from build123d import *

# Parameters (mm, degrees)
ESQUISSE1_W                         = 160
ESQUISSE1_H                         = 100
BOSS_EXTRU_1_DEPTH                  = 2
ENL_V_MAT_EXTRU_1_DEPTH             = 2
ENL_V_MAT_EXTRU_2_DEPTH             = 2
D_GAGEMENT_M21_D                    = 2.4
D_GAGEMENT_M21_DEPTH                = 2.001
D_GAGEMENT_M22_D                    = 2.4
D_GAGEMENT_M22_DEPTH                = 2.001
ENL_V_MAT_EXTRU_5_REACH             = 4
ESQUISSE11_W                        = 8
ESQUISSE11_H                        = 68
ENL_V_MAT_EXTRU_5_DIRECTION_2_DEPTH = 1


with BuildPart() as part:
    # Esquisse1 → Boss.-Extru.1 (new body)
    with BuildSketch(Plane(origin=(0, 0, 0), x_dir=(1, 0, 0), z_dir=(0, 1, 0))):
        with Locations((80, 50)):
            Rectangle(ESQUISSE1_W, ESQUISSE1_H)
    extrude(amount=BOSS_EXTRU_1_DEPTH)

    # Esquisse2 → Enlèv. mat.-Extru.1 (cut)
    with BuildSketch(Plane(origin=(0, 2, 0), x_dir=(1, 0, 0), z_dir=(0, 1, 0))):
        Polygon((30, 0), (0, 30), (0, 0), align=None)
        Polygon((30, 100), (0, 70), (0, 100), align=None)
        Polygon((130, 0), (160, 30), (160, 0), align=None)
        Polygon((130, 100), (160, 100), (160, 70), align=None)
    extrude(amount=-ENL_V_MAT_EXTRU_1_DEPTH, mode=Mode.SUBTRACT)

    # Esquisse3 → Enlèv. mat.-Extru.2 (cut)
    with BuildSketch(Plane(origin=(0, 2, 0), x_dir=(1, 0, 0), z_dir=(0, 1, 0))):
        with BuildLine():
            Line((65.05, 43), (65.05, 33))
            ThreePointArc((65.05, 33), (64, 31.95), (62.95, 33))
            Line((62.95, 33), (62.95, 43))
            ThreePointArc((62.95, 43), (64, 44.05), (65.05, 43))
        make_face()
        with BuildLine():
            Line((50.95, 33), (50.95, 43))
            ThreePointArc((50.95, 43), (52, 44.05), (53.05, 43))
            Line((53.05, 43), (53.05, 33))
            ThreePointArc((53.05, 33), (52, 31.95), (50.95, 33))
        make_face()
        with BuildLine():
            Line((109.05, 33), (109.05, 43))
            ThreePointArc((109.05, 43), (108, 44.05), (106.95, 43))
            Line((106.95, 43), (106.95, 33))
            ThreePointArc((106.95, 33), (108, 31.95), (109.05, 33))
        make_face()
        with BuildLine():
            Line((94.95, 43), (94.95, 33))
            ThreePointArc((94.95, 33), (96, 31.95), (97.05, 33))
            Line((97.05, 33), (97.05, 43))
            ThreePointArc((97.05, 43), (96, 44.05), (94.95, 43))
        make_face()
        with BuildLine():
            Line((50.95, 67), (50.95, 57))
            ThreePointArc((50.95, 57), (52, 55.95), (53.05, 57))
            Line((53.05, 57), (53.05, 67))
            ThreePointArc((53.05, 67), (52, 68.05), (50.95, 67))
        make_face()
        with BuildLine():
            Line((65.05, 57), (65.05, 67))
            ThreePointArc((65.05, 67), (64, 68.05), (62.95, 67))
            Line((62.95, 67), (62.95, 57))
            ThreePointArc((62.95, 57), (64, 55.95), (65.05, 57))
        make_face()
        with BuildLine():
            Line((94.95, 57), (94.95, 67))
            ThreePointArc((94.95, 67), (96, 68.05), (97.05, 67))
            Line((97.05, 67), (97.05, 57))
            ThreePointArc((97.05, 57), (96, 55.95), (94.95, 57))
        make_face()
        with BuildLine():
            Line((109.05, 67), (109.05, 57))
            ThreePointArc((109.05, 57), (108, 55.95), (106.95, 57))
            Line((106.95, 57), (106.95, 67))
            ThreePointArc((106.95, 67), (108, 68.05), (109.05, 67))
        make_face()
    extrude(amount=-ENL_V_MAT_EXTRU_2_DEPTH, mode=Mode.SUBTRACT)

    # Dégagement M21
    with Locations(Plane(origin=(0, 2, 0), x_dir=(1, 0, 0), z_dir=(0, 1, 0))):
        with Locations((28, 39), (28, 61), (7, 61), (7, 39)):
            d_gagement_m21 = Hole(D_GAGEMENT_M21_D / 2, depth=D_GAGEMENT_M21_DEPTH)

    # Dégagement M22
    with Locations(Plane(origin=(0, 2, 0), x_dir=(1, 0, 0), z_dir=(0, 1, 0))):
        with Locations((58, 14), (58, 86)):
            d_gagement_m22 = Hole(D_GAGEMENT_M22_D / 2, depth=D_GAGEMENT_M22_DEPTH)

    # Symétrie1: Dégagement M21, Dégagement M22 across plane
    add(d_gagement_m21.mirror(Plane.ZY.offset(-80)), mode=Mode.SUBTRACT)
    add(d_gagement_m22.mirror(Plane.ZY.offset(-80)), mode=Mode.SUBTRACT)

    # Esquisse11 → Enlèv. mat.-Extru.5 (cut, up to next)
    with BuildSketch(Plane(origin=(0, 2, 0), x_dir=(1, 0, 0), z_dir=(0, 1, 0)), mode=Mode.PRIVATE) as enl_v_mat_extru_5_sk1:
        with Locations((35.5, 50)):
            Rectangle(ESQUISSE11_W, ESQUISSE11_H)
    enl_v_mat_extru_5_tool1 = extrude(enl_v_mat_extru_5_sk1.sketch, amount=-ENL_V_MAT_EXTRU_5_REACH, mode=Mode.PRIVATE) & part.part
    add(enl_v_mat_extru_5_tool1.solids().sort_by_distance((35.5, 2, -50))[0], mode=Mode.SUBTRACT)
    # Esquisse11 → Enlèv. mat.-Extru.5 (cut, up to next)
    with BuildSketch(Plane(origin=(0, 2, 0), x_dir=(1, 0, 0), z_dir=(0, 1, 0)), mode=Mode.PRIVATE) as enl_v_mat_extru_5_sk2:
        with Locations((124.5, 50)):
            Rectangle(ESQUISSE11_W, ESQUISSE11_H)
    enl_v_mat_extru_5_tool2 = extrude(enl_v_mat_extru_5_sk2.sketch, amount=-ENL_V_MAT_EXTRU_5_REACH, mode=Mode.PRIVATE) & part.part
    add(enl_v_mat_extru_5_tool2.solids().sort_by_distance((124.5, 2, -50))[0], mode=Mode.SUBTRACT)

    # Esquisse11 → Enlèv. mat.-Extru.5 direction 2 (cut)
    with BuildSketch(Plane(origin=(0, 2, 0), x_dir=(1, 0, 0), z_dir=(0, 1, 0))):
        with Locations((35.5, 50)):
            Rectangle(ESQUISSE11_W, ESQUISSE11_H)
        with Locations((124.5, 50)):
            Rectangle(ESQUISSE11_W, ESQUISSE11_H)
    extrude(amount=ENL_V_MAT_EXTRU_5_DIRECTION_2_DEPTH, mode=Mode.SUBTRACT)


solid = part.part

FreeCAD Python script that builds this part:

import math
import FreeCAD as App
import Part
import Sketcher

V = App.Vector


def add_polygon(sketch, points):
    """Adds a closed chain of lines whose ends are joined by coincident constraints."""
    first, n = sketch.GeometryCount, len(points)
    for a, b in zip(points, points[1:] + points[:1]):
        sketch.addGeometry(Part.LineSegment(App.Vector(*a, 0), App.Vector(*b, 0)), False)
    for i in range(n):
        sketch.addConstraint(Sketcher.Constraint("Coincident", first + i, 2, first + (i + 1) % n, 1))

doc = App.newDocument("Part")
body = doc.addObject("PartDesign::Body", "Body")

sketch1 = body.newObject("Sketcher::SketchObject", "Sketch")
sketch1.AttachmentSupport = (doc.getObject("XZ_Plane"), [""])
sketch1.MapMode = "FlatFace"
add_polygon(sketch1, [(0, -100), (0, 0), (160, 0), (160, -100)])
sketch1.addConstraint(Sketcher.Constraint("Vertical", 0))
sketch1.addConstraint(Sketcher.Constraint("Horizontal", 1))
sketch1.addConstraint(Sketcher.Constraint("Vertical", 2))
sketch1.addConstraint(Sketcher.Constraint("Horizontal", 3))
sketch1.addConstraint(Sketcher.Constraint("Coincident", 0, 2, -1, 1))
sketch1.addConstraint(Sketcher.Constraint("DistanceX", 1, 1, 1, 2, 160.0))
sketch1.addConstraint(Sketcher.Constraint("DistanceY", 0, 1, 0, 2, 100.0))
pad1 = body.newObject("PartDesign::Pad", "Pad")
pad1.Profile = sketch1
pad1.Length = 2
pad1.Reversed = True

sketch2 = body.newObject("Sketcher::SketchObject", "Sketch001")
sketch2.AttachmentSupport = (doc.getObject("XZ_Plane"), [""])
sketch2.MapMode = "FlatFace"
sketch2.AttachmentOffset = App.Placement(V(0, 0, -2), App.Rotation())
add_polygon(sketch2, [(30, 0), (0, -30), (0, 0)])
add_polygon(sketch2, [(0, -70), (30, -100), (0, -100)])
add_polygon(sketch2, [(160, -30), (130, 0), (160, 0)])
add_polygon(sketch2, [(160, -100), (130, -100), (160, -70)])
sketch2.addConstraint(Sketcher.Constraint("Vertical", 1))
sketch2.addConstraint(Sketcher.Constraint("Horizontal", 2))
sketch2.addConstraint(Sketcher.Constraint("Horizontal", 4))
sketch2.addConstraint(Sketcher.Constraint("Vertical", 5))
sketch2.addConstraint(Sketcher.Constraint("Horizontal", 7))
sketch2.addConstraint(Sketcher.Constraint("Vertical", 8))
sketch2.addConstraint(Sketcher.Constraint("Horizontal", 9))
sketch2.addConstraint(Sketcher.Constraint("Vertical", 11))
sketch2.addConstraint(Sketcher.Constraint("Coincident", 1, 2, -1, 1))
sketch2.addConstraint(Sketcher.Constraint("PointOnObject", 4, 2, -2))
sketch2.addConstraint(Sketcher.Constraint("PointOnObject", 6, 2, -1))
sketch2.addConstraint(Sketcher.Constraint("Perpendicular", 0, 3))
sketch2.addConstraint(Sketcher.Constraint("Parallel", 3, 6))
sketch2.addConstraint(Sketcher.Constraint("Perpendicular", 6, 10))
sketch2.addConstraint(Sketcher.Constraint("Horizontal", 0, 2, 8, 2))
sketch2.addConstraint(Sketcher.Constraint("Horizontal", 4, 2, 9, 2))
sketch2.addConstraint(Sketcher.Constraint("Horizontal", 5, 2, 10, 2))
sketch2.addConstraint(Sketcher.Constraint("Vertical", 2, 2, 3, 2))
sketch2.addConstraint(Sketcher.Constraint("Vertical", 6, 2, 9, 2))
sketch2.addConstraint(Sketcher.Constraint("Vertical", 8, 2, 10, 2))
sketch2.addConstraint(Sketcher.Constraint("DistanceX", 2, 1, 2, 2, 30.0))
sketch2.addConstraint(Sketcher.Constraint("DistanceY", 3, 2, -1, 1, 100.0))
sketch2.addConstraint(Sketcher.Constraint("DistanceX", -1, 1, 6, 2, 130.0))
pocket1 = body.newObject("PartDesign::Pocket", "Pocket")
pocket1.Profile = sketch2
pocket1.Length = 2
pocket1.Reversed = True

sketch3 = body.newObject("Sketcher::SketchObject", "Sketch002")
sketch3.AttachmentSupport = (doc.getObject("XZ_Plane"), [""])
sketch3.MapMode = "FlatFace"
sketch3.AttachmentOffset = App.Placement(V(0, 0, -2), App.Rotation())
sketch3.addGeometry(Part.LineSegment(V(65, -33, 0), V(65, -43, 0)), False)
sketch3.addGeometry(Part.ArcOfCircle(Part.Circle(V(64, -43, 0), V(0, 0, 1), 1.1), math.radians(180), math.radians(360)), False)
sketch3.addGeometry(Part.LineSegment(V(63, -43, 0), V(63, -33, 0)), False)
sketch3.addGeometry(Part.ArcOfCircle(Part.Circle(V(64, -33, 0), V(0, 0, 1), 1.1), math.radians(0), math.radians(180)), False)
sketch3.addGeometry(Part.LineSegment(V(51, -43, 0), V(51, -33, 0)), False)
sketch3.addGeometry(Part.ArcOfCircle(Part.Circle(V(52, -33, 0), V(0, 0, 1), 1.1), math.radians(0), math.radians(180)), False)
sketch3.addGeometry(Part.LineSegment(V(53, -33, 0), V(53, -43, 0)), False)
sketch3.addGeometry(Part.ArcOfCircle(Part.Circle(V(52, -43, 0), V(0, 0, 1), 1.1), math.radians(180), math.radians(360)), False)
sketch3.addGeometry(Part.LineSegment(V(109, -33, 0), V(109, -43, 0)), False)
sketch3.addGeometry(Part.ArcOfCircle(Part.Circle(V(108, -43, 0), V(0, 0, 1), 1.1), math.radians(180), math.radians(360)), False)
sketch3.addGeometry(Part.LineSegment(V(107, -43, 0), V(107, -33, 0)), False)
sketch3.addGeometry(Part.ArcOfCircle(Part.Circle(V(108, -33, 0), V(0, 0, 1), 1.1), math.radians(0), math.radians(180)), False)
sketch3.addGeometry(Part.LineSegment(V(95, -43, 0), V(95, -33, 0)), False)
sketch3.addGeometry(Part.ArcOfCircle(Part.Circle(V(96, -33, 0), V(0, 0, 1), 1.1), math.radians(0), math.radians(180)), False)
sketch3.addGeometry(Part.LineSegment(V(97, -33, 0), V(97, -43, 0)), False)
sketch3.addGeometry(Part.ArcOfCircle(Part.Circle(V(96, -43, 0), V(0, 0, 1), 1.1), math.radians(180), math.radians(360)), False)
sketch3.addGeometry(Part.LineSegment(V(51, -67, 0), V(51, -57, 0)), False)
sketch3.addGeometry(Part.ArcOfCircle(Part.Circle(V(52, -57, 0), V(0, 0, 1), 1.1), math.radians(0), math.radians(180)), False)
sketch3.addGeometry(Part.LineSegment(V(53, -57, 0), V(53, -67, 0)), False)
sketch3.addGeometry(Part.ArcOfCircle(Part.Circle(V(52, -67, 0), V(0, 0, 1), 1.1), math.radians(180), math.radians(360)), False)
sketch3.addGeometry(Part.LineSegment(V(65, -57, 0), V(65, -67, 0)), False)
sketch3.addGeometry(Part.ArcOfCircle(Part.Circle(V(64, -67, 0), V(0, 0, 1), 1.1), math.radians(180), math.radians(360)), False)
sketch3.addGeometry(Part.LineSegment(V(63, -67, 0), V(63, -57, 0)), False)
sketch3.addGeometry(Part.ArcOfCircle(Part.Circle(V(64, -57, 0), V(0, 0, 1), 1.1), math.radians(0), math.radians(180)), False)
sketch3.addGeometry(Part.LineSegment(V(95, -67, 0), V(95, -57, 0)), False)
sketch3.addGeometry(Part.ArcOfCircle(Part.Circle(V(96, -57, 0), V(0, 0, 1), 1.1), math.radians(0), math.radians(180)), False)
sketch3.addGeometry(Part.LineSegment(V(97, -57, 0), V(97, -67, 0)), False)
sketch3.addGeometry(Part.ArcOfCircle(Part.Circle(V(96, -67, 0), V(0, 0, 1), 1.1), math.radians(180), math.radians(360)), False)
sketch3.addGeometry(Part.LineSegment(V(109, -57, 0), V(109, -67, 0)), False)
sketch3.addGeometry(Part.ArcOfCircle(Part.Circle(V(108, -67, 0), V(0, 0, 1), 1.1), math.radians(180), math.radians(360)), False)
sketch3.addGeometry(Part.LineSegment(V(107, -67, 0), V(107, -57, 0)), False)
sketch3.addGeometry(Part.ArcOfCircle(Part.Circle(V(108, -57, 0), V(0, 0, 1), 1.1), math.radians(0), math.radians(180)), False)
sketch3.addConstraint(Sketcher.Constraint("Tangent", 0, 2, 1, 2))
sketch3.addConstraint(Sketcher.Constraint("Tangent", 1, 1, 2, 1))
sketch3.addConstraint(Sketcher.Constraint("Tangent", 2, 2, 3, 2))
sketch3.addConstraint(Sketcher.Constraint("Tangent", 3, 1, 0, 1))
sketch3.addConstraint(Sketcher.Constraint("Tangent", 4, 2, 5, 2))
sketch3.addConstraint(Sketcher.Constraint("Tangent", 5, 1, 6, 1))
sketch3.addConstraint(Sketcher.Constraint("Tangent", 6, 2, 7, 2))
sketch3.addConstraint(Sketcher.Constraint("Tangent", 7, 1, 4, 1))
sketch3.addConstraint(Sketcher.Constraint("Tangent", 8, 2, 9, 2))
sketch3.addConstraint(Sketcher.Constraint("Tangent", 9, 1, 10, 1))
sketch3.addConstraint(Sketcher.Constraint("Tangent", 10, 2, 11, 2))
sketch3.addConstraint(Sketcher.Constraint("Tangent", 11, 1, 8, 1))
sketch3.addConstraint(Sketcher.Constraint("Tangent", 12, 2, 13, 2))
sketch3.addConstraint(Sketcher.Constraint("Tangent", 13, 1, 14, 1))
sketch3.addConstraint(Sketcher.Constraint("Tangent", 14, 2, 15, 2))
sketch3.addConstraint(Sketcher.Constraint("Tangent", 15, 1, 12, 1))
sketch3.addConstraint(Sketcher.Constraint("Tangent", 16, 2, 17, 2))
sketch3.addConstraint(Sketcher.Constraint("Tangent", 17, 1, 18, 1))
sketch3.addConstraint(Sketcher.Constraint("Tangent", 18, 2, 19, 2))
sketch3.addConstraint(Sketcher.Constraint("Tangent", 19, 1, 16, 1))
sketch3.addConstraint(Sketcher.Constraint("Tangent", 20, 2, 21, 2))
sketch3.addConstraint(Sketcher.Constraint("Tangent", 21, 1, 22, 1))
sketch3.addConstraint(Sketcher.Constraint("Tangent", 22, 2, 23, 2))
sketch3.addConstraint(Sketcher.Constraint("Tangent", 23, 1, 20, 1))
sketch3.addConstraint(Sketcher.Constraint("Tangent", 24, 2, 25, 2))
sketch3.addConstraint(Sketcher.Constraint("Tangent", 25, 1, 26, 1))
sketch3.addConstraint(Sketcher.Constraint("Tangent", 26, 2, 27, 2))
sketch3.addConstraint(Sketcher.Constraint("Tangent", 27, 1, 24, 1))
sketch3.addConstraint(Sketcher.Constraint("Tangent", 28, 2, 29, 2))
sketch3.addConstraint(Sketcher.Constraint("Tangent", 29, 1, 30, 1))
sketch3.addConstraint(Sketcher.Constraint("Tangent", 30, 2, 31, 2))
sketch3.addConstraint(Sketcher.Constraint("Tangent", 31, 1, 28, 1))
sketch3.addConstraint(Sketcher.Constraint("Vertical", 0))
sketch3.addConstraint(Sketcher.Constraint("Vertical", 2))
sketch3.addConstraint(Sketcher.Constraint("Vertical", 4))
sketch3.addConstraint(Sketcher.Constraint("Vertical", 6))
sketch3.addConstraint(Sketcher.Constraint("Vertical", 8))
sketch3.addConstraint(Sketcher.Constraint("Vertical", 10))
sketch3.addConstraint(Sketcher.Constraint("Vertical", 12))
sketch3.addConstraint(Sketcher.Constraint("Vertical", 14))
sketch3.addConstraint(Sketcher.Constraint("Vertical", 16))
sketch3.addConstraint(Sketcher.Constraint("Vertical", 18))
sketch3.addConstraint(Sketcher.Constraint("Vertical", 20))
sketch3.addConstraint(Sketcher.Constraint("Vertical", 22))
sketch3.addConstraint(Sketcher.Constraint("Vertical", 24))
sketch3.addConstraint(Sketcher.Constraint("Vertical", 26))
sketch3.addConstraint(Sketcher.Constraint("Vertical", 28))
sketch3.addConstraint(Sketcher.Constraint("Vertical", 30))
sketch3.addConstraint(Sketcher.Constraint("Equal", 3, 5))
sketch3.addConstraint(Sketcher.Constraint("Equal", 7, 9))
sketch3.addConstraint(Sketcher.Constraint("Equal", 11, 13))
sketch3.addConstraint(Sketcher.Constraint("Equal", 15, 17))
sketch3.addConstraint(Sketcher.Constraint("Equal", 19, 21))
sketch3.addConstraint(Sketcher.Constraint("Equal", 23, 25))
sketch3.addConstraint(Sketcher.Constraint("Equal", 27, 29))
sketch3.addConstraint(Sketcher.Constraint("Horizontal", 3, 3, 5, 3))
sketch3.addConstraint(Sketcher.Constraint("Horizontal", 1, 3, 7, 3))
sketch3.addConstraint(Sketcher.Constraint("Horizontal", 7, 3, 9, 3))
sketch3.addConstraint(Sketcher.Constraint("Horizontal", 5, 3, 11, 3))
sketch3.addConstraint(Sketcher.Constraint("Horizontal", 11, 3, 13, 3))
sketch3.addConstraint(Sketcher.Constraint("Horizontal", 9, 3, 15, 3))
sketch3.addConstraint(Sketcher.Constraint("Horizontal", 19, 3, 21, 3))
sketch3.addConstraint(Sketcher.Constraint("Horizontal", 17, 3, 23, 3))
sketch3.addConstraint(Sketcher.Constraint("Horizontal", 23, 3, 25, 3))
sketch3.addConstraint(Sketcher.Constraint("Horizontal", 21, 3, 27, 3))
sketch3.addConstraint(Sketcher.Constraint("Horizontal", 27, 3, 29, 3))
sketch3.addConstraint(Sketcher.Constraint("Horizontal", 25, 3, 31, 3))
sketch3.addConstraint(Sketcher.Constraint("Vertical", 7, 3, 17, 3))
sketch3.addConstraint(Sketcher.Constraint("Vertical", 3, 3, 21, 3))
sketch3.addConstraint(Sketcher.Constraint("Vertical", 15, 3, 25, 3))
sketch3.addConstraint(Sketcher.Constraint("Vertical", 11, 3, 29, 3))
sketch3.addConstraint(Sketcher.Constraint("Equal", 14, 16))
sketch3.addConstraint(Sketcher.Constraint("DistanceY", 0, 2, 0, 1, 10.0))
sketch3.addConstraint(Sketcher.Constraint("Radius", 1, 1.05))
sketch3.addConstraint(Sketcher.Constraint("DistanceX", -1, 1, 1, 3, 64.0))
sketch3.addConstraint(Sketcher.Constraint("DistanceY", 1, 3, -1, 1, 43.0))
sketch3.addConstraint(Sketcher.Constraint("DistanceX", -1, 1, 5, 3, 52.0))
sketch3.addConstraint(Sketcher.Constraint("DistanceX", -1, 1, 9, 3, 108.0))
sketch3.addConstraint(Sketcher.Constraint("DistanceX", -1, 1, 13, 3, 96.0))
sketch3.addConstraint(Sketcher.Constraint("DistanceY", 17, 3, -1, 1, 57.0))
pocket2 = body.newObject("PartDesign::Pocket", "Pocket001")
pocket2.Profile = sketch3
pocket2.Length = 2
pocket2.Reversed = True

sketch4 = body.newObject("Sketcher::SketchObject", "Sketch003")
sketch4.AttachmentSupport = (doc.getObject("XZ_Plane"), [""])
sketch4.MapMode = "FlatFace"
sketch4.AttachmentOffset = App.Placement(V(0, 0, -2), App.Rotation())
sketch4.addGeometry(Part.Circle(V(28, -39, 0), V(0, 0, 1), 1.2), False)
sketch4.addGeometry(Part.Circle(V(28, -61, 0), V(0, 0, 1), 1.2), False)
sketch4.addGeometry(Part.Circle(V(7, -61, 0), V(0, 0, 1), 1.2), False)
sketch4.addGeometry(Part.Circle(V(7, -39, 0), V(0, 0, 1), 1.2), False)
sketch4.addConstraint(Sketcher.Constraint("Equal", 0, 1))
sketch4.addConstraint(Sketcher.Constraint("Equal", 1, 2))
sketch4.addConstraint(Sketcher.Constraint("Equal", 2, 3))
sketch4.addConstraint(Sketcher.Constraint("Horizontal", 1, 3, 2, 3))
sketch4.addConstraint(Sketcher.Constraint("Horizontal", 0, 3, 3, 3))
sketch4.addConstraint(Sketcher.Constraint("Vertical", 0, 3, 1, 3))
sketch4.addConstraint(Sketcher.Constraint("Vertical", 2, 3, 3, 3))
sketch4.addConstraint(Sketcher.Constraint("Diameter", 0, 2.4))
sketch4.addConstraint(Sketcher.Constraint("DistanceX", -1, 1, 0, 3, 28.0))
sketch4.addConstraint(Sketcher.Constraint("DistanceY", 0, 3, -1, 1, 39.0))
sketch4.addConstraint(Sketcher.Constraint("DistanceY", 1, 3, -1, 1, 61.0))
sketch4.addConstraint(Sketcher.Constraint("DistanceX", -1, 1, 2, 3, 7.0))
doc.recompute()
hole = body.newObject("PartDesign::Hole", "Hole")
hole.Profile = sketch4
hole.ThreadType = "None"
hole.Diameter = 2.4
hole.DepthType = "Dimension"
hole.Depth = 2.001
hole.DrillPoint = "Flat"
hole.Reversed = True

sketch5 = body.newObject("Sketcher::SketchObject", "Sketch004")
sketch5.AttachmentSupport = (doc.getObject("XZ_Plane"), [""])
sketch5.MapMode = "FlatFace"
sketch5.AttachmentOffset = App.Placement(V(0, 0, -2), App.Rotation())
sketch5.addGeometry(Part.Circle(V(58, -14, 0), V(0, 0, 1), 1.2), False)
sketch5.addGeometry(Part.Circle(V(58, -86, 0), V(0, 0, 1), 1.2), False)
sketch5.addConstraint(Sketcher.Constraint("Equal", 0, 1))
sketch5.addConstraint(Sketcher.Constraint("Vertical", 0, 3, 1, 3))
sketch5.addConstraint(Sketcher.Constraint("Diameter", 0, 2.4))
sketch5.addConstraint(Sketcher.Constraint("DistanceX", -1, 1, 0, 3, 58.0))
sketch5.addConstraint(Sketcher.Constraint("DistanceY", 0, 3, -1, 1, 14.0))
sketch5.addConstraint(Sketcher.Constraint("DistanceY", 1, 3, -1, 1, 86.0))
doc.recompute()
hole2 = body.newObject("PartDesign::Hole", "Hole001")
hole2.Profile = sketch5
hole2.ThreadType = "None"
hole2.Diameter = 2.4
hole2.DepthType = "Dimension"
hole2.Depth = 2.001
hole2.DrillPoint = "Flat"
hole2.Reversed = True
doc.recompute()

datumplane = body.newObject("PartDesign::Plane", "DatumPlane")
datumplane.AttachmentSupport = (doc.getObject("YZ_Plane"), [""])
datumplane.MapMode = "FlatFace"
datumplane.AttachmentOffset = App.Placement(V(0, 0, 80), App.Rotation())
mirrored = body.newObject("PartDesign::Mirrored", "Mirrored")
mirrored.Originals = [hole, hole2]
mirrored.MirrorPlane = (datumplane, [""])
body.Tip = mirrored

sketch6 = body.newObject("Sketcher::SketchObject", "Sketch005")
sketch6.AttachmentSupport = (doc.getObject("XZ_Plane"), [""])
sketch6.MapMode = "FlatFace"
sketch6.AttachmentOffset = App.Placement(V(0, 0, -2), App.Rotation())
add_polygon(sketch6, [(32, -84), (32, -16), (40, -16), (40, -84)])
sketch6.addConstraint(Sketcher.Constraint("Vertical", 0))
sketch6.addConstraint(Sketcher.Constraint("Horizontal", 1))
sketch6.addConstraint(Sketcher.Constraint("Vertical", 2))
sketch6.addConstraint(Sketcher.Constraint("Horizontal", 3))
sketch6.addConstraint(Sketcher.Constraint("DistanceX", 1, 1, 1, 2, 8.0))
sketch6.addConstraint(Sketcher.Constraint("DistanceY", 0, 1, 0, 2, 68.0))
sketch6.addConstraint(Sketcher.Constraint("DistanceY", 0, 2, -1, 1, 16.0))
sketch6.addConstraint(Sketcher.Constraint("DistanceX", -1, 1, 0, 2, 31.5))
pocket3 = body.newObject("PartDesign::Pocket", "Pocket002")
pocket3.Profile = sketch6
pocket3.Type = "UpToFirst"
pocket3.Reversed = True

sketch7 = body.newObject("Sketcher::SketchObject", "Sketch006")
sketch7.AttachmentSupport = (doc.getObject("XZ_Plane"), [""])
sketch7.MapMode = "FlatFace"
sketch7.AttachmentOffset = App.Placement(V(0, 0, -2), App.Rotation())
add_polygon(sketch7, [(120, -84), (120, -16), (128, -16), (128, -84)])
sketch7.addConstraint(Sketcher.Constraint("Vertical", 0))
sketch7.addConstraint(Sketcher.Constraint("Horizontal", 1))
sketch7.addConstraint(Sketcher.Constraint("Vertical", 2))
sketch7.addConstraint(Sketcher.Constraint("Horizontal", 3))
sketch7.addConstraint(Sketcher.Constraint("DistanceX", 1, 1, 1, 2, 8.0))
sketch7.addConstraint(Sketcher.Constraint("DistanceY", 0, 1, 0, 2, 68.0))
sketch7.addConstraint(Sketcher.Constraint("DistanceY", 0, 2, -1, 1, 16.0))
sketch7.addConstraint(Sketcher.Constraint("DistanceX", -1, 1, 0, 2, 120.5))
pocket4 = body.newObject("PartDesign::Pocket", "Pocket003")
pocket4.Profile = sketch7
pocket4.Type = "UpToFirst"
pocket4.Reversed = True

sketch8 = body.newObject("Sketcher::SketchObject", "Sketch007")
sketch8.AttachmentSupport = (doc.getObject("XZ_Plane"), [""])
sketch8.MapMode = "FlatFace"
sketch8.AttachmentOffset = App.Placement(V(0, 0, -2), App.Rotation())
add_polygon(sketch8, [(32, -84), (32, -16), (40, -16), (40, -84)])
add_polygon(sketch8, [(120, -84), (120, -16), (128, -16), (128, -84)])
sketch8.addConstraint(Sketcher.Constraint("Vertical", 0))
sketch8.addConstraint(Sketcher.Constraint("Horizontal", 1))
sketch8.addConstraint(Sketcher.Constraint("Vertical", 2))
sketch8.addConstraint(Sketcher.Constraint("Horizontal", 3))
sketch8.addConstraint(Sketcher.Constraint("Vertical", 4))
sketch8.addConstraint(Sketcher.Constraint("Horizontal", 5))
sketch8.addConstraint(Sketcher.Constraint("Vertical", 6))
sketch8.addConstraint(Sketcher.Constraint("Horizontal", 7))
sketch8.addConstraint(Sketcher.Constraint("Horizontal", 1, 2, 4, 2))
sketch8.addConstraint(Sketcher.Constraint("Horizontal", 3, 2, 6, 2))
sketch8.addConstraint(Sketcher.Constraint("Equal", 3, 5))
sketch8.addConstraint(Sketcher.Constraint("DistanceX", 1, 1, 1, 2, 8.0))
sketch8.addConstraint(Sketcher.Constraint("DistanceY", 0, 1, 0, 2, 68.0))
sketch8.addConstraint(Sketcher.Constraint("DistanceY", 0, 2, -1, 1, 16.0))
sketch8.addConstraint(Sketcher.Constraint("DistanceX", 1, 2, 4, 2, 81.0))
sketch8.addConstraint(Sketcher.Constraint("DistanceX", -1, 1, 0, 2, 31.5))
pocket5 = body.newObject("PartDesign::Pocket", "Pocket004")
pocket5.Profile = sketch8
pocket5.Length = 1

doc.recompute()
